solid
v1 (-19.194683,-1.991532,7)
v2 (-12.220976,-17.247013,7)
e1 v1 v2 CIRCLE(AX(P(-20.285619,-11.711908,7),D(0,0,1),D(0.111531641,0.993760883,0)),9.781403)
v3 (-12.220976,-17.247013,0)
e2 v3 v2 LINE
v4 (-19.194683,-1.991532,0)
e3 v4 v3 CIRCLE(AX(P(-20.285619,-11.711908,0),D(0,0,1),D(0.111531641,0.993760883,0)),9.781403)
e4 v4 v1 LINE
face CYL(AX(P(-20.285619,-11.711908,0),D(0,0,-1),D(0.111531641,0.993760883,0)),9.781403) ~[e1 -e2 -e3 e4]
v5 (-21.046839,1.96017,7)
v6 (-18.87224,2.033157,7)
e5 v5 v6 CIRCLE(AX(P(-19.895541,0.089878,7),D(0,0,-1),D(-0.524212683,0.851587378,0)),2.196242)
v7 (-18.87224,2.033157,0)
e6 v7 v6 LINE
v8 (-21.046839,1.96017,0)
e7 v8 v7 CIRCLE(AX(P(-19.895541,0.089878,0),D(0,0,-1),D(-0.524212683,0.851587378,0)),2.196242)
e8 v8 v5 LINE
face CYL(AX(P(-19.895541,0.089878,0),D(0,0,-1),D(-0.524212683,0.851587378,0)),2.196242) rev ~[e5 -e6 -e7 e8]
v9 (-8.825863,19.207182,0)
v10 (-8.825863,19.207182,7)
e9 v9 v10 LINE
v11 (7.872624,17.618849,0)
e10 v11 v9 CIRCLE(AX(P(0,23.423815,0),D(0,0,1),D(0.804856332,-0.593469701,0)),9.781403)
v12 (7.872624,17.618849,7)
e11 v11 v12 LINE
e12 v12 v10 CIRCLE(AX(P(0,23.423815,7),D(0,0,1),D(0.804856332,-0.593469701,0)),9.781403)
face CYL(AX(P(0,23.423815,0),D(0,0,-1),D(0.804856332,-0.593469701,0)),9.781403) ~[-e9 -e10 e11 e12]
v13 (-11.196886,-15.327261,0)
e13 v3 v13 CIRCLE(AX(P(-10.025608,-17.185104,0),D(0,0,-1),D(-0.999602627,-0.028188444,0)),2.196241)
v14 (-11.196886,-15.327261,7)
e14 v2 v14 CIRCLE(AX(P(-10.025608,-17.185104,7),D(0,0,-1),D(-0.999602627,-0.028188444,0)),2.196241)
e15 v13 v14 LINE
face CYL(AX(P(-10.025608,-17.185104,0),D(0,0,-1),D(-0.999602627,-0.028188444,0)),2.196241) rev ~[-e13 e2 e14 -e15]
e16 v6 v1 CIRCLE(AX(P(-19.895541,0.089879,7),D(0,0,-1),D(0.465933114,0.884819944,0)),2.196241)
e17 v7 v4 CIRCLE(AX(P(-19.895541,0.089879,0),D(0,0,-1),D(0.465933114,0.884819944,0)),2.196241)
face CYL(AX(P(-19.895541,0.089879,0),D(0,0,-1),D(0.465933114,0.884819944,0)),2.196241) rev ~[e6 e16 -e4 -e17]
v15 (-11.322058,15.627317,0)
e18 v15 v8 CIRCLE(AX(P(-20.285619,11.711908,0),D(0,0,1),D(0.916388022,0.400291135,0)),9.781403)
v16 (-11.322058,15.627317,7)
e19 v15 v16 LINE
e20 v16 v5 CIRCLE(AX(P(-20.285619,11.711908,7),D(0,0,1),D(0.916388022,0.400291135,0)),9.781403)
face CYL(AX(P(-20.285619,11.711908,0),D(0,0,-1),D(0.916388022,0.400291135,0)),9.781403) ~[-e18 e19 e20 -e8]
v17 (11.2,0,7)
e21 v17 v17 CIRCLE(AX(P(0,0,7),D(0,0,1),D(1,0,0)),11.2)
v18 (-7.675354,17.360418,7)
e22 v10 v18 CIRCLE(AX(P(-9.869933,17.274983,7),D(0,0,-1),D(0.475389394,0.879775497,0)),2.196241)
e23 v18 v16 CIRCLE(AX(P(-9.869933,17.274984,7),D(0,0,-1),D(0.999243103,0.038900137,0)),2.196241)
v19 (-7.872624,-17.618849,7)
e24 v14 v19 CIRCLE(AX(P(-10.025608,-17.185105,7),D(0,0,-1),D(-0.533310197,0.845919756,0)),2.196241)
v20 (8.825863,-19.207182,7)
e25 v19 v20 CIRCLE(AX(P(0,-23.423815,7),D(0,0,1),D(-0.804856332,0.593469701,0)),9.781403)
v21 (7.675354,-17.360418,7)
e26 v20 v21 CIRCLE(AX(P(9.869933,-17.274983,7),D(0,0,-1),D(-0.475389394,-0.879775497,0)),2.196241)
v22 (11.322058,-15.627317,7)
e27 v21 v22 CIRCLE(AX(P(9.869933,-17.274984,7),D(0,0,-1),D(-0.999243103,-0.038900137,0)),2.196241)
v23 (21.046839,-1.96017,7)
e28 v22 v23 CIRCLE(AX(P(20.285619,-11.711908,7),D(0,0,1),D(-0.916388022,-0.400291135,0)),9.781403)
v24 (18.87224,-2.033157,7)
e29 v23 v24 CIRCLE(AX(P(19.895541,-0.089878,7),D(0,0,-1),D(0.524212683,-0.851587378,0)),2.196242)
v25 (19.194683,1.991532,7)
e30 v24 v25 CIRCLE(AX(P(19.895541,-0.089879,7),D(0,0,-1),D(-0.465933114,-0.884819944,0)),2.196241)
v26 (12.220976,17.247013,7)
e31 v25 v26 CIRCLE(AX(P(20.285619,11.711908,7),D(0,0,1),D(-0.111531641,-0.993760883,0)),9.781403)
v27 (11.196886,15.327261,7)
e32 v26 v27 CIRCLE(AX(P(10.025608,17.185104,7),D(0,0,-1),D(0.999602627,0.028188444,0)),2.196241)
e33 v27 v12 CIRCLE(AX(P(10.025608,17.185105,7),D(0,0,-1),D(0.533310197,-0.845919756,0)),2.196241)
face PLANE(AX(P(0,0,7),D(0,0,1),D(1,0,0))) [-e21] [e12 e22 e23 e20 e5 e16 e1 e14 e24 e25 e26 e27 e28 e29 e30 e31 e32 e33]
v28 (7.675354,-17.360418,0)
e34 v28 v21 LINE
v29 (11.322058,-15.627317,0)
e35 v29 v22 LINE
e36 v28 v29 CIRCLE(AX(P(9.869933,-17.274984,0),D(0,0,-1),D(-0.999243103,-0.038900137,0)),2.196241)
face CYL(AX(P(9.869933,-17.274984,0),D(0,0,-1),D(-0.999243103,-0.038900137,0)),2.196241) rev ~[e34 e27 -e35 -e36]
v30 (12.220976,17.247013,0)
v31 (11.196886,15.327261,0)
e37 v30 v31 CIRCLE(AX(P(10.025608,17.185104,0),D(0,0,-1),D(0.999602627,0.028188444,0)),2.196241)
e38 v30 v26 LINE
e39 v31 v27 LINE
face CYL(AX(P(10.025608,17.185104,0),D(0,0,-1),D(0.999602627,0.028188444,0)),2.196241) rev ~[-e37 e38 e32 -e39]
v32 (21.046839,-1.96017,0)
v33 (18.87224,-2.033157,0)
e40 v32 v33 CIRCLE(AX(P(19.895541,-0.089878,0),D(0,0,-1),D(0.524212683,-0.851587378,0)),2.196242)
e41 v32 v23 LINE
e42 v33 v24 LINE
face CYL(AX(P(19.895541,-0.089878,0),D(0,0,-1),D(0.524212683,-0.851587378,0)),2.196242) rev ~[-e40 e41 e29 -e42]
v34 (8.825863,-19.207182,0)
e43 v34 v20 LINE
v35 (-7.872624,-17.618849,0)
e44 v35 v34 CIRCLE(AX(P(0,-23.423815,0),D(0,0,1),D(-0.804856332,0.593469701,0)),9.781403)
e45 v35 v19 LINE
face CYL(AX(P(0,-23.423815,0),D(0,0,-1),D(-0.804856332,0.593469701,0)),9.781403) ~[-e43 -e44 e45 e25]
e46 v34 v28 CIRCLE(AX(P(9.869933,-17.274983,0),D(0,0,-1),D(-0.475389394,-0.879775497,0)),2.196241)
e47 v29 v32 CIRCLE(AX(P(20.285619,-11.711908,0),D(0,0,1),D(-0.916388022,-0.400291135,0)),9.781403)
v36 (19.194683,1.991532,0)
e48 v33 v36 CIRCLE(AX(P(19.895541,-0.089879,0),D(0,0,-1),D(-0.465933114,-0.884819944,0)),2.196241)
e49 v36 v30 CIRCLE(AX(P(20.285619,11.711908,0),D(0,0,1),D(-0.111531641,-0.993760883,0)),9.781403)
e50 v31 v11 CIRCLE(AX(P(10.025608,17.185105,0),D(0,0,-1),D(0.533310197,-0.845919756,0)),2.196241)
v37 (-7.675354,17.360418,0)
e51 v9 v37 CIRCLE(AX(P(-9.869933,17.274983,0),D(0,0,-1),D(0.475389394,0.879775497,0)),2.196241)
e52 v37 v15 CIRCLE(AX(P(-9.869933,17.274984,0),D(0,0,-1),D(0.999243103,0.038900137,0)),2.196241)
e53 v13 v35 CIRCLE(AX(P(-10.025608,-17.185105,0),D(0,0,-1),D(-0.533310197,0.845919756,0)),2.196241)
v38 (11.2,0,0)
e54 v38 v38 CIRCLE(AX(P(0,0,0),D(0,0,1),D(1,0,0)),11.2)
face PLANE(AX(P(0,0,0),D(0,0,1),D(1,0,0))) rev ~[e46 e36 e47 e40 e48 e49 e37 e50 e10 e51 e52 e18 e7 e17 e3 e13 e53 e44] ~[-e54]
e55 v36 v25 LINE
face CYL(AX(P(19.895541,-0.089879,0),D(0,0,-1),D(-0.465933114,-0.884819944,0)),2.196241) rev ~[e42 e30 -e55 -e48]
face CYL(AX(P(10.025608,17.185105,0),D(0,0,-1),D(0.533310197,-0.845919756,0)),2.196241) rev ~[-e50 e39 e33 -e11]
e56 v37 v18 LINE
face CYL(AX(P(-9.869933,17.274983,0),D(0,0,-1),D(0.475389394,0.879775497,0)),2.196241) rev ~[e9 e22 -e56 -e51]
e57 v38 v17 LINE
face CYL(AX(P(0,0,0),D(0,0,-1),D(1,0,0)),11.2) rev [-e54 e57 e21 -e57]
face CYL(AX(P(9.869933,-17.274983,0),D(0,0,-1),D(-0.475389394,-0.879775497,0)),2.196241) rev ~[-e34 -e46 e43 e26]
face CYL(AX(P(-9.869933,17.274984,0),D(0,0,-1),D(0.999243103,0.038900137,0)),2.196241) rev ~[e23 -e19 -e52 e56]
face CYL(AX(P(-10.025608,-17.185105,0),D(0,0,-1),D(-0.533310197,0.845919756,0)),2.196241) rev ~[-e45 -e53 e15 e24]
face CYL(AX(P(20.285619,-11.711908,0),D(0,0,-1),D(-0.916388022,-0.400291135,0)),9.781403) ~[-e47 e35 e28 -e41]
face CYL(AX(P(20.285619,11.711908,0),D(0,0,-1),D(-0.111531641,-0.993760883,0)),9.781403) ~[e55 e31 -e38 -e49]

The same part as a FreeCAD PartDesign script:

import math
import FreeCAD as App
import Part
import Sketcher

doc = App.newDocument("Part")
body = doc.addObject("PartDesign::Body", "Body")

# Sketch on XY plane
sketch1 = doc.addObject("Sketcher::SketchObject", "Sketch")
body.addObject(sketch1)
sketch1.AttachmentSupport = (doc.XY_Plane, [""])
sketch1.MapMode = "FlatFace"
sketch1.addGeometry([
    Part.ArcOfCircle(Part.Circle(App.Vector(10, 17.2, 0), App.Vector(0, 0, 1), 2.2), math.radians(169), math.radians(302)),  # 0
    Part.ArcOfCircle(Part.Circle(App.Vector(0, 23.4, 0), App.Vector(0, 0, 1), 9.8), math.radians(-36), math.radians(206)),  # 1
    Part.ArcOfCircle(Part.Circle(App.Vector(-9.9, 17.3, 0), App.Vector(0, 0, 1), 2.2), math.radians(2), math.radians(62)),  # 2
    Part.ArcOfCircle(Part.Circle(App.Vector(-9.9, 17.3, 0), App.Vector(0, 0, 1), 2.2), math.radians(-131), math.radians(2)),  # 3
    Part.ArcOfCircle(Part.Circle(App.Vector(-20.3, 11.7, 0), App.Vector(0, 0, 1), 9.8), math.radians(24), math.radians(266)),  # 4
    Part.ArcOfCircle(Part.Circle(App.Vector(-19.9, 0.1, 0), App.Vector(0, 0, 1), 2.2), math.radians(62), math.radians(122)),  # 5
    Part.ArcOfCircle(Part.Circle(App.Vector(-19.9, 0.1, 0), App.Vector(0, 0, 1), 2.2), math.radians(-71), math.radians(62)),  # 6
    Part.ArcOfCircle(Part.Circle(App.Vector(-20.3, -11.7, 0), App.Vector(0, 0, 1), 9.8), math.radians(84), math.radians(326)),  # 7
    Part.ArcOfCircle(Part.Circle(App.Vector(-10, -17.2, 0), App.Vector(0, 0, 1), 2.2), math.radians(122), math.radians(182)),  # 8
    Part.ArcOfCircle(Part.Circle(App.Vector(-10, -17.2, 0), App.Vector(0, 0, 1), 2.2), math.radians(-11), math.radians(122)),  # 9
    Part.ArcOfCircle(Part.Circle(App.Vector(0, -23.4, 0), App.Vector(0, 0, 1), 9.8), math.radians(144), math.radians(386)),  # 10
    Part.ArcOfCircle(Part.Circle(App.Vector(9.9, -17.3, 0), App.Vector(0, 0, 1), 2.2), math.radians(-178), math.radians(-118)),  # 11
    Part.ArcOfCircle(Part.Circle(App.Vector(9.9, -17.3, 0), App.Vector(0, 0, 1), 2.2), math.radians(49), math.radians(182)),  # 12
    Part.ArcOfCircle(Part.Circle(App.Vector(20.3, -11.7, 0), App.Vector(0, 0, 1), 9.8), math.radians(-156), math.radians(86)),  # 13
    Part.ArcOfCircle(Part.Circle(App.Vector(19.9, -0.1, 0), App.Vector(0, 0, 1), 2.2), math.radians(-118), math.radians(-58)),  # 14
    Part.ArcOfCircle(Part.Circle(App.Vector(19.9, -0.1, 0), App.Vector(0, 0, 1), 2.2), math.radians(109), math.radians(242)),  # 15
    Part.ArcOfCircle(Part.Circle(App.Vector(20.3, 11.7, 0), App.Vector(0, 0, 1), 9.8), math.radians(-96), math.radians(146)),  # 16
    Part.ArcOfCircle(Part.Circle(App.Vector(10, 17.2, 0), App.Vector(0, 0, 1), 2.2), math.radians(-58), math.radians(2)),  # 17
    Part.Circle(App.Vector(0, 0, 0), App.Vector(0, 0, 1), 11.2),  # 18
], False)
sketch1.addConstraint([
    Sketcher.Constraint("Coincident", 0, 1, 1, 1),
    Sketcher.Constraint("Coincident", 1, 2, 2, 2),
    Sketcher.Constraint("Tangent", 2, 1, 3, 2),
    Sketcher.Constraint("Coincident", 3, 1, 4, 1),
    Sketcher.Constraint("Coincident", 4, 2, 5, 2),
    Sketcher.Constraint("Tangent", 5, 1, 6, 2),
    Sketcher.Constraint("Coincident", 6, 1, 7, 1),
    Sketcher.Constraint("Coincident", 7, 2, 8, 2),
    Sketcher.Constraint("Tangent", 8, 1, 9, 2),
    Sketcher.Constraint("Coincident", 9, 1, 10, 1),
    Sketcher.Constraint("Coincident", 10, 2, 11, 2),
    Sketcher.Constraint("Tangent", 11, 1, 12, 2),
    Sketcher.Constraint("Coincident", 12, 1, 13, 1),
    Sketcher.Constraint("Coincident", 13, 2, 14, 2),
    Sketcher.Constraint("Tangent", 14, 1, 15, 2),
    Sketcher.Constraint("Coincident", 15, 1, 16, 1),
    Sketcher.Constraint("Coincident", 16, 2, 17, 2),
    Sketcher.Constraint("Tangent", 17, 1, 0, 2),
    Sketcher.Constraint("Coincident", 18, 3, -1, 1),
    Sketcher.Constraint("Equal", 0, 2),
    Sketcher.Constraint("Equal", 2, 3),
    Sketcher.Constraint("Equal", 1, 4),
    Sketcher.Constraint("Equal", 3, 5),
    Sketcher.Constraint("Equal", 5, 6),
    Sketcher.Constraint("Equal", 4, 7),
    Sketcher.Constraint("Equal", 6, 8),
    Sketcher.Constraint("Equal", 8, 9),
    Sketcher.Constraint("Equal", 7, 10),
    Sketcher.Constraint("Equal", 9, 11),
    Sketcher.Constraint("Equal", 11, 12),
    Sketcher.Constraint("Equal", 10, 13),
    Sketcher.Constraint("Equal", 12, 14),
    Sketcher.Constraint("Equal", 14, 15),
    Sketcher.Constraint("Equal", 13, 16),
    Sketcher.Constraint("Equal", 15, 17),
    Sketcher.Constraint("Symmetric", 0, 3, 8, 3, -1, 1),
    Sketcher.Constraint("Symmetric", 1, 3, 10, 3, -1, 1),
    Sketcher.Constraint("Symmetric", 2, 3, 11, 3, -1, 1),
    Sketcher.Constraint("Symmetric", 4, 3, 13, 3, -1, 1),
    Sketcher.Constraint("Symmetric", 5, 3, 14, 3, -1, 1),
    Sketcher.Constraint("Symmetric", 7, 3, 16, 3, -1, 1),
    Sketcher.Constraint("Symmetric", 7, 3, 13, 3, -2),
    Sketcher.Constraint("PointOnObject", 1, 3, -2),
    Sketcher.Constraint("Diameter", 18, 22.4),
    Sketcher.Constraint("Radius", 0, 2.196241),
    Sketcher.Constraint("Radius", 1, 9.781403),
    Sketcher.Constraint("DistanceY", 3, 3, 1, 2, 1.932198),
    Sketcher.Constraint("DistanceY", 3, 1, 2, 1, 1.733101),
    Sketcher.Constraint("DistanceX", 4, 2, 5, 1, 2.174599),
    Sketcher.Constraint("DistanceX", 6, 3, 5, 1, 1.023301),
    Sketcher.Constraint("DistanceY", 6, 1, 4, 2, 3.951702),
    Sketcher.Constraint("DistanceY", 11, 1, 12, 1, 1.733101),
    Sketcher.Constraint("DistanceX", 14, 1, 13, 2, 2.174599),
    Sketcher.Constraint("DistanceX", -1, 1, 0, 3, 10.025608),
    Sketcher.Constraint("DistanceX", 4, 3, -1, 1, 20.285619),
    Sketcher.Constraint("DistanceX", 5, 3, -1, 1, 19.895541),
    Sketcher.Constraint("DistanceY", -1, 1, 0, 1, 17.618849),
    Sketcher.Constraint("DistanceX", 3, 1, -1, 1, 11.322058),
    Sketcher.Constraint("DistanceY", 8, 1, -1, 1, 15.327261),
    Sketcher.Constraint("DistanceY", -1, 1, 17, 1, 15.327261),
    Sketcher.Constraint("DistanceY", 0, 3, 1, 3, 6.238711),
])
pad1 = doc.addObject("PartDesign::Pad", "Pad")
body.addObject(pad1)
pad1.Profile = sketch1
pad1.Length = 7

doc.recompute()
